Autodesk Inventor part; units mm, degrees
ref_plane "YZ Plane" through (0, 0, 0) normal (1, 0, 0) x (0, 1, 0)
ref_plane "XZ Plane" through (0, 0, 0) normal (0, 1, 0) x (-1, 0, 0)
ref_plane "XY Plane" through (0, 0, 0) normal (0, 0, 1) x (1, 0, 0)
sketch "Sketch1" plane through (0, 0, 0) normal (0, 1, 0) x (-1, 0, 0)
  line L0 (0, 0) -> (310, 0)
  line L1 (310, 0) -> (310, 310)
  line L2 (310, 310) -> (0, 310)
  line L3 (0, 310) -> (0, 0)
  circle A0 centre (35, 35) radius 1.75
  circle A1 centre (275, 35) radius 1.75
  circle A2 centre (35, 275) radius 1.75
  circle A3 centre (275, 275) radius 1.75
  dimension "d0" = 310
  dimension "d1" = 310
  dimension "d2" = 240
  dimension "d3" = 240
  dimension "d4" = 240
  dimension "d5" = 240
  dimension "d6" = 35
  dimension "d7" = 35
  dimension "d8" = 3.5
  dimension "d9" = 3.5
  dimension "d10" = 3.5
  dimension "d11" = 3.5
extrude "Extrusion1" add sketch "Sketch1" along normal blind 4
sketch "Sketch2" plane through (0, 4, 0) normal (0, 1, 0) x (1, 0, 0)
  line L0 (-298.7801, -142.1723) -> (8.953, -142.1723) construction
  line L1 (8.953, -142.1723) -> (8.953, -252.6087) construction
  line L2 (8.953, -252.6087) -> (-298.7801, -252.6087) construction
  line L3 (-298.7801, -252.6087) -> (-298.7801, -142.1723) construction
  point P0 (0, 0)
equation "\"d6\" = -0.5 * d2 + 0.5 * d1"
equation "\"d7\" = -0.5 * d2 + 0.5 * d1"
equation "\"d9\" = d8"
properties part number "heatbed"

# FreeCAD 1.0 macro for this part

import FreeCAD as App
import Part
import Sketcher
from FreeCAD import Vector
Q = App.Units.Quantity

doc = App.newDocument("Part")
params = doc.addObject("Spreadsheet::Sheet", "Params")
for row, (alias, value) in enumerate([
    ("sketch1_diameter", "3.5 mm"),
    ("sketch1_width", "310 mm"),
    ("pad1_length", "4 mm"),
], start=1):
    params.set(f"A{row}", alias)
    params.set(f"B{row}", "=" + value)
    params.setAlias(f"B{row}", alias)

body = doc.addObject("PartDesign::Body", "Body")

# Sketch on XZ plane
sketch1 = doc.addObject("Sketcher::SketchObject", "Sketch")
body.addObject(sketch1)
sketch1.AttachmentSupport = (doc.XZ_Plane, [""])
sketch1.MapMode = "FlatFace"
sketch1.addGeometry([
    Part.LineSegment(Vector(0, 310, 0), Vector(0, 0, 0)),  # 0
    Part.LineSegment(Vector(0, 0, 0), Vector(-310, 0, 0)),  # 1
    Part.LineSegment(Vector(-310, 0, 0), Vector(-310, 310, 0)),  # 2
    Part.LineSegment(Vector(-310, 310, 0), Vector(0, 310, 0)),  # 3
    Part.Circle(Vector(-35, 35, 0), Vector(0, 0, 1), 1.8),  # 4
    Part.Circle(Vector(-275, 35, 0), Vector(0, 0, 1), 1.8),  # 5
    Part.Circle(Vector(-35, 275, 0), Vector(0, 0, 1), 1.8),  # 6
    Part.Circle(Vector(-275, 275, 0), Vector(0, 0, 1), 1.8),  # 7
], False)
sketch1.addConstraint([
    Sketcher.Constraint("Coincident", 0, 2, 1, 1),
    Sketcher.Constraint("Coincident", 1, 2, 2, 1),
    Sketcher.Constraint("Coincident", 2, 2, 3, 1),
    Sketcher.Constraint("Coincident", 3, 2, 0, 1),
    Sketcher.Constraint("Vertical", 0),
    Sketcher.Constraint("Horizontal", 1),
    Sketcher.Constraint("Vertical", 2),
    Sketcher.Constraint("Horizontal", 3),
    Sketcher.Constraint("Coincident", 0, 2, -1, 1),
    Sketcher.Constraint("Equal", 4, 5),
    Sketcher.Constraint("Equal", 5, 6),
    Sketcher.Constraint("Equal", 6, 7),
    Sketcher.Constraint("Horizontal", 4, 3, 5, 3),
    Sketcher.Constraint("Horizontal", 6, 3, 7, 3),
    Sketcher.Constraint("Vertical", 4, 3, 6, 3),
    Sketcher.Constraint("Vertical", 5, 3, 7, 3),
    Sketcher.Constraint("Equal", 3, 0),
    Sketcher.Constraint("Diameter", 4, Q("3.5 mm")),
    Sketcher.Constraint("DistanceX", 1, 2, 1, 1, Q("310 mm")),
    Sketcher.Constraint("DistanceX", 4, 3, -1, 1, Q("35 mm")),
    Sketcher.Constraint("DistanceY", -1, 1, 4, 3, Q("35 mm")),
    Sketcher.Constraint("DistanceX", 5, 3, 4, 3, Q("240 mm")),
    Sketcher.Constraint("DistanceY", 4, 3, 6, 3, Q("240 mm")),
])
sketch1.setExpression("Constraints[17]", "Params.sketch1_diameter")
sketch1.setExpression("Constraints[18]", "Params.sketch1_width")
pad1 = doc.addObject("PartDesign::Pad", "Pad")
body.addObject(pad1)
pad1.Profile = sketch1
pad1.setExpression("Length", "Params.pad1_length")
pad1.Reversed = True

doc.recompute()
